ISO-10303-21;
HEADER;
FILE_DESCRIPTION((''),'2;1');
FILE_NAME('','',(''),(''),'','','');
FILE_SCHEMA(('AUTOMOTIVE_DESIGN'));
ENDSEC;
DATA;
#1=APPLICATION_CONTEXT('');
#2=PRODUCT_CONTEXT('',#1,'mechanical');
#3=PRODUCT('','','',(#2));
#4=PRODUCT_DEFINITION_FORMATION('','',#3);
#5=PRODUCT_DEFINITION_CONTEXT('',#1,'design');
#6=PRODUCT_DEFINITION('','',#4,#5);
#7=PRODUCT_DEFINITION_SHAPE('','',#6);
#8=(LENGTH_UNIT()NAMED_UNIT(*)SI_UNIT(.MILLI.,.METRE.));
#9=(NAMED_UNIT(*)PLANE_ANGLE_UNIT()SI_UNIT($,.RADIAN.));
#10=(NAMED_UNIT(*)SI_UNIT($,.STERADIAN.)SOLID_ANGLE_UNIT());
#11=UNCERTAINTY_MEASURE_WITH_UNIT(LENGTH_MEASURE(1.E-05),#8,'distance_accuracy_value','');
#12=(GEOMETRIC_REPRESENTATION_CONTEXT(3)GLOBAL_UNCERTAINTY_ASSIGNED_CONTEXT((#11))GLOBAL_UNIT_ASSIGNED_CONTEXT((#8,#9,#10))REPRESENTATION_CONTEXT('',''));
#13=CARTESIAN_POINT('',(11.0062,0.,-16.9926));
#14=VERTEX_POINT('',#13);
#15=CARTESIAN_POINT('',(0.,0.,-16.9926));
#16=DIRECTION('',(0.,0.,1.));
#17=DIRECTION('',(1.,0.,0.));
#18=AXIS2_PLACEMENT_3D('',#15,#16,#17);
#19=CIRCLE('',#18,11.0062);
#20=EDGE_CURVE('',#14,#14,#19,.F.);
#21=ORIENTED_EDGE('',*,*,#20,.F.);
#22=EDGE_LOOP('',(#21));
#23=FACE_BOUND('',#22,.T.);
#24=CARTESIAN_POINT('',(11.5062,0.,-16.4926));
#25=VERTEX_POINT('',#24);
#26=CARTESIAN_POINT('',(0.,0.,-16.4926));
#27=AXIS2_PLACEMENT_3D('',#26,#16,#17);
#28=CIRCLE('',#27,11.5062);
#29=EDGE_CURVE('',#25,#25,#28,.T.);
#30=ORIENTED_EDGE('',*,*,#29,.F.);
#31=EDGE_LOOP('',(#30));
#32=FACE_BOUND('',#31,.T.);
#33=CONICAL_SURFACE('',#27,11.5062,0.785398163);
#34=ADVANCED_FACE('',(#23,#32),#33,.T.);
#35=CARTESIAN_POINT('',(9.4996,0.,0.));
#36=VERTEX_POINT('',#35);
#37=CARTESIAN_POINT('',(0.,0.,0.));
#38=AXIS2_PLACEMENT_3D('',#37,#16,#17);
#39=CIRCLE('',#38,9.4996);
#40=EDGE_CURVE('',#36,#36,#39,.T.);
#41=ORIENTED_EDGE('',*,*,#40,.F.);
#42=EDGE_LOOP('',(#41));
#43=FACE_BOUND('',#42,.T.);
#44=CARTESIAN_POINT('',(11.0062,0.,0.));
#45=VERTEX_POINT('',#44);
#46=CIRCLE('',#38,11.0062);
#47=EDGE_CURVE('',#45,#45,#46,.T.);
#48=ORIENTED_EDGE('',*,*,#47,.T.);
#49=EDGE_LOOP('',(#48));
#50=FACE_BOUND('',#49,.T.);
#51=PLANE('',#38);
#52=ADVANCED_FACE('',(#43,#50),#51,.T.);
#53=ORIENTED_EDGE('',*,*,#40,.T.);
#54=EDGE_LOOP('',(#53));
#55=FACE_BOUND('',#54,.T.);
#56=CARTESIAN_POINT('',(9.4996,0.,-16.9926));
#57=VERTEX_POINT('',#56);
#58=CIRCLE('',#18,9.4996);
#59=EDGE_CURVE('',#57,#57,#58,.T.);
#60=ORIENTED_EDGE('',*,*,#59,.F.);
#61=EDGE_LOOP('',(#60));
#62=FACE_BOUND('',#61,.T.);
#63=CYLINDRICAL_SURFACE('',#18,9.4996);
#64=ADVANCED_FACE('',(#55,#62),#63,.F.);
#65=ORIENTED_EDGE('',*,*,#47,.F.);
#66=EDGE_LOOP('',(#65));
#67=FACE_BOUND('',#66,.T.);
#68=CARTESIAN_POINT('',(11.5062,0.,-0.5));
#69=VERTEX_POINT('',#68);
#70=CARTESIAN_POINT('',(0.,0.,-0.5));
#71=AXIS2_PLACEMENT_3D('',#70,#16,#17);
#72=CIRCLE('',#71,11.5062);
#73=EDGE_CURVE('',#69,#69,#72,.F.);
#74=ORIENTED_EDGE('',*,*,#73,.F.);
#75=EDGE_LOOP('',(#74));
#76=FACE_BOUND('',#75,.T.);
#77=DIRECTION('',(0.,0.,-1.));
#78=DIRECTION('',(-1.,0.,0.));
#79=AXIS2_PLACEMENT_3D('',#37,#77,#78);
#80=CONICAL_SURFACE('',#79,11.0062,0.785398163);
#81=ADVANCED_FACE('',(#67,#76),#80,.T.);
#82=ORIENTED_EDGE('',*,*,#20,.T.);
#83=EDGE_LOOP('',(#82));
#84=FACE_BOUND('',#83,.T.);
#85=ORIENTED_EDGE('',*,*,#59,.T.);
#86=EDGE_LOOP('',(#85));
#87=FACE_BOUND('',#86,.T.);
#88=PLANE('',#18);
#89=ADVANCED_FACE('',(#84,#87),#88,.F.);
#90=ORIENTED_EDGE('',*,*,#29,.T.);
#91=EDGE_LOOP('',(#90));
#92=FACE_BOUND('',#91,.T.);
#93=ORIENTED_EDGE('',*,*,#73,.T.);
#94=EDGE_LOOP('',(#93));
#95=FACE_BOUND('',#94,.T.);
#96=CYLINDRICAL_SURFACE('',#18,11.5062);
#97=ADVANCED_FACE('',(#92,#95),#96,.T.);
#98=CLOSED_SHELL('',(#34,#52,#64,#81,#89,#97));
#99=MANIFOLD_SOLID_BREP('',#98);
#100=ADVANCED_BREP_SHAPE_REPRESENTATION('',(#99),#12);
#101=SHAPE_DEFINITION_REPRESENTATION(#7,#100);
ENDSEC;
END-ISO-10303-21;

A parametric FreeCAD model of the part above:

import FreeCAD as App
import Part
import Sketcher
from FreeCAD import Vector
Q = App.Units.Quantity


def edges_at(feature, points):
    """Names of the edges that pass closest to the given points."""
    edges = feature.Shape.Edges
    near = lambda p: min(range(len(edges)), key=lambda i: edges[i].distToShape(Part.Vertex(*p))[0])
    return sorted({f"Edge{near(p) + 1}" for p in points})

doc = App.newDocument("Part")
params = doc.addObject("Spreadsheet::Sheet", "Params")
for row, (alias, value) in enumerate([
    ("sketch1_diameter", "0.906 in"),
    ("sketch1_diameter2", "0.748 in"),
    ("pad1_length", "0.669 in"),
    ("chamfer_size", "0.5 mm"),
], start=1):
    params.set(f"A{row}", alias)
    params.set(f"B{row}", "=" + value)
    params.setAlias(f"B{row}", alias)

body = doc.addObject("PartDesign::Body", "Body")

# Sketch on XY plane
sketch1 = body.newObject("Sketcher::SketchObject", "Sketch")
sketch1.AttachmentSupport = (doc.getObject("XY_Plane"), [""])
sketch1.MapMode = "FlatFace"
sketch1.addGeometry([
    Part.Circle(Vector(0, 0, 0), Vector(0, 0, 1), 12),
    Part.Circle(Vector(0, 0, 0), Vector(0, 0, 1), 9),
], False)
sketch1.addConstraint([
    Sketcher.Constraint("Coincident", 0, 3, -1, 1),
    Sketcher.Constraint("Coincident", 1, 3, -1, 1),
    Sketcher.Constraint("Diameter", 0, Q("0.906 in")),
    Sketcher.Constraint("Diameter", 1, Q("0.748 in")),
])
sketch1.setExpression("Constraints[2]", "Params.sketch1_diameter")
sketch1.setExpression("Constraints[3]", "Params.sketch1_diameter2")
pad1 = body.newObject("PartDesign::Pad", "Pad")
pad1.Profile = sketch1
pad1.setExpression("Length", "Params.pad1_length")
pad1.Reversed = True
doc.recompute()

chamfer = body.newObject("PartDesign::Chamfer", "Chamfer")
chamfer.Base = (pad1, edges_at(pad1, [(-11.506, 0, 0), (-11.506, 0, -16.993)]))
chamfer.setExpression("Size", "Params.chamfer_size")

doc.recompute()
